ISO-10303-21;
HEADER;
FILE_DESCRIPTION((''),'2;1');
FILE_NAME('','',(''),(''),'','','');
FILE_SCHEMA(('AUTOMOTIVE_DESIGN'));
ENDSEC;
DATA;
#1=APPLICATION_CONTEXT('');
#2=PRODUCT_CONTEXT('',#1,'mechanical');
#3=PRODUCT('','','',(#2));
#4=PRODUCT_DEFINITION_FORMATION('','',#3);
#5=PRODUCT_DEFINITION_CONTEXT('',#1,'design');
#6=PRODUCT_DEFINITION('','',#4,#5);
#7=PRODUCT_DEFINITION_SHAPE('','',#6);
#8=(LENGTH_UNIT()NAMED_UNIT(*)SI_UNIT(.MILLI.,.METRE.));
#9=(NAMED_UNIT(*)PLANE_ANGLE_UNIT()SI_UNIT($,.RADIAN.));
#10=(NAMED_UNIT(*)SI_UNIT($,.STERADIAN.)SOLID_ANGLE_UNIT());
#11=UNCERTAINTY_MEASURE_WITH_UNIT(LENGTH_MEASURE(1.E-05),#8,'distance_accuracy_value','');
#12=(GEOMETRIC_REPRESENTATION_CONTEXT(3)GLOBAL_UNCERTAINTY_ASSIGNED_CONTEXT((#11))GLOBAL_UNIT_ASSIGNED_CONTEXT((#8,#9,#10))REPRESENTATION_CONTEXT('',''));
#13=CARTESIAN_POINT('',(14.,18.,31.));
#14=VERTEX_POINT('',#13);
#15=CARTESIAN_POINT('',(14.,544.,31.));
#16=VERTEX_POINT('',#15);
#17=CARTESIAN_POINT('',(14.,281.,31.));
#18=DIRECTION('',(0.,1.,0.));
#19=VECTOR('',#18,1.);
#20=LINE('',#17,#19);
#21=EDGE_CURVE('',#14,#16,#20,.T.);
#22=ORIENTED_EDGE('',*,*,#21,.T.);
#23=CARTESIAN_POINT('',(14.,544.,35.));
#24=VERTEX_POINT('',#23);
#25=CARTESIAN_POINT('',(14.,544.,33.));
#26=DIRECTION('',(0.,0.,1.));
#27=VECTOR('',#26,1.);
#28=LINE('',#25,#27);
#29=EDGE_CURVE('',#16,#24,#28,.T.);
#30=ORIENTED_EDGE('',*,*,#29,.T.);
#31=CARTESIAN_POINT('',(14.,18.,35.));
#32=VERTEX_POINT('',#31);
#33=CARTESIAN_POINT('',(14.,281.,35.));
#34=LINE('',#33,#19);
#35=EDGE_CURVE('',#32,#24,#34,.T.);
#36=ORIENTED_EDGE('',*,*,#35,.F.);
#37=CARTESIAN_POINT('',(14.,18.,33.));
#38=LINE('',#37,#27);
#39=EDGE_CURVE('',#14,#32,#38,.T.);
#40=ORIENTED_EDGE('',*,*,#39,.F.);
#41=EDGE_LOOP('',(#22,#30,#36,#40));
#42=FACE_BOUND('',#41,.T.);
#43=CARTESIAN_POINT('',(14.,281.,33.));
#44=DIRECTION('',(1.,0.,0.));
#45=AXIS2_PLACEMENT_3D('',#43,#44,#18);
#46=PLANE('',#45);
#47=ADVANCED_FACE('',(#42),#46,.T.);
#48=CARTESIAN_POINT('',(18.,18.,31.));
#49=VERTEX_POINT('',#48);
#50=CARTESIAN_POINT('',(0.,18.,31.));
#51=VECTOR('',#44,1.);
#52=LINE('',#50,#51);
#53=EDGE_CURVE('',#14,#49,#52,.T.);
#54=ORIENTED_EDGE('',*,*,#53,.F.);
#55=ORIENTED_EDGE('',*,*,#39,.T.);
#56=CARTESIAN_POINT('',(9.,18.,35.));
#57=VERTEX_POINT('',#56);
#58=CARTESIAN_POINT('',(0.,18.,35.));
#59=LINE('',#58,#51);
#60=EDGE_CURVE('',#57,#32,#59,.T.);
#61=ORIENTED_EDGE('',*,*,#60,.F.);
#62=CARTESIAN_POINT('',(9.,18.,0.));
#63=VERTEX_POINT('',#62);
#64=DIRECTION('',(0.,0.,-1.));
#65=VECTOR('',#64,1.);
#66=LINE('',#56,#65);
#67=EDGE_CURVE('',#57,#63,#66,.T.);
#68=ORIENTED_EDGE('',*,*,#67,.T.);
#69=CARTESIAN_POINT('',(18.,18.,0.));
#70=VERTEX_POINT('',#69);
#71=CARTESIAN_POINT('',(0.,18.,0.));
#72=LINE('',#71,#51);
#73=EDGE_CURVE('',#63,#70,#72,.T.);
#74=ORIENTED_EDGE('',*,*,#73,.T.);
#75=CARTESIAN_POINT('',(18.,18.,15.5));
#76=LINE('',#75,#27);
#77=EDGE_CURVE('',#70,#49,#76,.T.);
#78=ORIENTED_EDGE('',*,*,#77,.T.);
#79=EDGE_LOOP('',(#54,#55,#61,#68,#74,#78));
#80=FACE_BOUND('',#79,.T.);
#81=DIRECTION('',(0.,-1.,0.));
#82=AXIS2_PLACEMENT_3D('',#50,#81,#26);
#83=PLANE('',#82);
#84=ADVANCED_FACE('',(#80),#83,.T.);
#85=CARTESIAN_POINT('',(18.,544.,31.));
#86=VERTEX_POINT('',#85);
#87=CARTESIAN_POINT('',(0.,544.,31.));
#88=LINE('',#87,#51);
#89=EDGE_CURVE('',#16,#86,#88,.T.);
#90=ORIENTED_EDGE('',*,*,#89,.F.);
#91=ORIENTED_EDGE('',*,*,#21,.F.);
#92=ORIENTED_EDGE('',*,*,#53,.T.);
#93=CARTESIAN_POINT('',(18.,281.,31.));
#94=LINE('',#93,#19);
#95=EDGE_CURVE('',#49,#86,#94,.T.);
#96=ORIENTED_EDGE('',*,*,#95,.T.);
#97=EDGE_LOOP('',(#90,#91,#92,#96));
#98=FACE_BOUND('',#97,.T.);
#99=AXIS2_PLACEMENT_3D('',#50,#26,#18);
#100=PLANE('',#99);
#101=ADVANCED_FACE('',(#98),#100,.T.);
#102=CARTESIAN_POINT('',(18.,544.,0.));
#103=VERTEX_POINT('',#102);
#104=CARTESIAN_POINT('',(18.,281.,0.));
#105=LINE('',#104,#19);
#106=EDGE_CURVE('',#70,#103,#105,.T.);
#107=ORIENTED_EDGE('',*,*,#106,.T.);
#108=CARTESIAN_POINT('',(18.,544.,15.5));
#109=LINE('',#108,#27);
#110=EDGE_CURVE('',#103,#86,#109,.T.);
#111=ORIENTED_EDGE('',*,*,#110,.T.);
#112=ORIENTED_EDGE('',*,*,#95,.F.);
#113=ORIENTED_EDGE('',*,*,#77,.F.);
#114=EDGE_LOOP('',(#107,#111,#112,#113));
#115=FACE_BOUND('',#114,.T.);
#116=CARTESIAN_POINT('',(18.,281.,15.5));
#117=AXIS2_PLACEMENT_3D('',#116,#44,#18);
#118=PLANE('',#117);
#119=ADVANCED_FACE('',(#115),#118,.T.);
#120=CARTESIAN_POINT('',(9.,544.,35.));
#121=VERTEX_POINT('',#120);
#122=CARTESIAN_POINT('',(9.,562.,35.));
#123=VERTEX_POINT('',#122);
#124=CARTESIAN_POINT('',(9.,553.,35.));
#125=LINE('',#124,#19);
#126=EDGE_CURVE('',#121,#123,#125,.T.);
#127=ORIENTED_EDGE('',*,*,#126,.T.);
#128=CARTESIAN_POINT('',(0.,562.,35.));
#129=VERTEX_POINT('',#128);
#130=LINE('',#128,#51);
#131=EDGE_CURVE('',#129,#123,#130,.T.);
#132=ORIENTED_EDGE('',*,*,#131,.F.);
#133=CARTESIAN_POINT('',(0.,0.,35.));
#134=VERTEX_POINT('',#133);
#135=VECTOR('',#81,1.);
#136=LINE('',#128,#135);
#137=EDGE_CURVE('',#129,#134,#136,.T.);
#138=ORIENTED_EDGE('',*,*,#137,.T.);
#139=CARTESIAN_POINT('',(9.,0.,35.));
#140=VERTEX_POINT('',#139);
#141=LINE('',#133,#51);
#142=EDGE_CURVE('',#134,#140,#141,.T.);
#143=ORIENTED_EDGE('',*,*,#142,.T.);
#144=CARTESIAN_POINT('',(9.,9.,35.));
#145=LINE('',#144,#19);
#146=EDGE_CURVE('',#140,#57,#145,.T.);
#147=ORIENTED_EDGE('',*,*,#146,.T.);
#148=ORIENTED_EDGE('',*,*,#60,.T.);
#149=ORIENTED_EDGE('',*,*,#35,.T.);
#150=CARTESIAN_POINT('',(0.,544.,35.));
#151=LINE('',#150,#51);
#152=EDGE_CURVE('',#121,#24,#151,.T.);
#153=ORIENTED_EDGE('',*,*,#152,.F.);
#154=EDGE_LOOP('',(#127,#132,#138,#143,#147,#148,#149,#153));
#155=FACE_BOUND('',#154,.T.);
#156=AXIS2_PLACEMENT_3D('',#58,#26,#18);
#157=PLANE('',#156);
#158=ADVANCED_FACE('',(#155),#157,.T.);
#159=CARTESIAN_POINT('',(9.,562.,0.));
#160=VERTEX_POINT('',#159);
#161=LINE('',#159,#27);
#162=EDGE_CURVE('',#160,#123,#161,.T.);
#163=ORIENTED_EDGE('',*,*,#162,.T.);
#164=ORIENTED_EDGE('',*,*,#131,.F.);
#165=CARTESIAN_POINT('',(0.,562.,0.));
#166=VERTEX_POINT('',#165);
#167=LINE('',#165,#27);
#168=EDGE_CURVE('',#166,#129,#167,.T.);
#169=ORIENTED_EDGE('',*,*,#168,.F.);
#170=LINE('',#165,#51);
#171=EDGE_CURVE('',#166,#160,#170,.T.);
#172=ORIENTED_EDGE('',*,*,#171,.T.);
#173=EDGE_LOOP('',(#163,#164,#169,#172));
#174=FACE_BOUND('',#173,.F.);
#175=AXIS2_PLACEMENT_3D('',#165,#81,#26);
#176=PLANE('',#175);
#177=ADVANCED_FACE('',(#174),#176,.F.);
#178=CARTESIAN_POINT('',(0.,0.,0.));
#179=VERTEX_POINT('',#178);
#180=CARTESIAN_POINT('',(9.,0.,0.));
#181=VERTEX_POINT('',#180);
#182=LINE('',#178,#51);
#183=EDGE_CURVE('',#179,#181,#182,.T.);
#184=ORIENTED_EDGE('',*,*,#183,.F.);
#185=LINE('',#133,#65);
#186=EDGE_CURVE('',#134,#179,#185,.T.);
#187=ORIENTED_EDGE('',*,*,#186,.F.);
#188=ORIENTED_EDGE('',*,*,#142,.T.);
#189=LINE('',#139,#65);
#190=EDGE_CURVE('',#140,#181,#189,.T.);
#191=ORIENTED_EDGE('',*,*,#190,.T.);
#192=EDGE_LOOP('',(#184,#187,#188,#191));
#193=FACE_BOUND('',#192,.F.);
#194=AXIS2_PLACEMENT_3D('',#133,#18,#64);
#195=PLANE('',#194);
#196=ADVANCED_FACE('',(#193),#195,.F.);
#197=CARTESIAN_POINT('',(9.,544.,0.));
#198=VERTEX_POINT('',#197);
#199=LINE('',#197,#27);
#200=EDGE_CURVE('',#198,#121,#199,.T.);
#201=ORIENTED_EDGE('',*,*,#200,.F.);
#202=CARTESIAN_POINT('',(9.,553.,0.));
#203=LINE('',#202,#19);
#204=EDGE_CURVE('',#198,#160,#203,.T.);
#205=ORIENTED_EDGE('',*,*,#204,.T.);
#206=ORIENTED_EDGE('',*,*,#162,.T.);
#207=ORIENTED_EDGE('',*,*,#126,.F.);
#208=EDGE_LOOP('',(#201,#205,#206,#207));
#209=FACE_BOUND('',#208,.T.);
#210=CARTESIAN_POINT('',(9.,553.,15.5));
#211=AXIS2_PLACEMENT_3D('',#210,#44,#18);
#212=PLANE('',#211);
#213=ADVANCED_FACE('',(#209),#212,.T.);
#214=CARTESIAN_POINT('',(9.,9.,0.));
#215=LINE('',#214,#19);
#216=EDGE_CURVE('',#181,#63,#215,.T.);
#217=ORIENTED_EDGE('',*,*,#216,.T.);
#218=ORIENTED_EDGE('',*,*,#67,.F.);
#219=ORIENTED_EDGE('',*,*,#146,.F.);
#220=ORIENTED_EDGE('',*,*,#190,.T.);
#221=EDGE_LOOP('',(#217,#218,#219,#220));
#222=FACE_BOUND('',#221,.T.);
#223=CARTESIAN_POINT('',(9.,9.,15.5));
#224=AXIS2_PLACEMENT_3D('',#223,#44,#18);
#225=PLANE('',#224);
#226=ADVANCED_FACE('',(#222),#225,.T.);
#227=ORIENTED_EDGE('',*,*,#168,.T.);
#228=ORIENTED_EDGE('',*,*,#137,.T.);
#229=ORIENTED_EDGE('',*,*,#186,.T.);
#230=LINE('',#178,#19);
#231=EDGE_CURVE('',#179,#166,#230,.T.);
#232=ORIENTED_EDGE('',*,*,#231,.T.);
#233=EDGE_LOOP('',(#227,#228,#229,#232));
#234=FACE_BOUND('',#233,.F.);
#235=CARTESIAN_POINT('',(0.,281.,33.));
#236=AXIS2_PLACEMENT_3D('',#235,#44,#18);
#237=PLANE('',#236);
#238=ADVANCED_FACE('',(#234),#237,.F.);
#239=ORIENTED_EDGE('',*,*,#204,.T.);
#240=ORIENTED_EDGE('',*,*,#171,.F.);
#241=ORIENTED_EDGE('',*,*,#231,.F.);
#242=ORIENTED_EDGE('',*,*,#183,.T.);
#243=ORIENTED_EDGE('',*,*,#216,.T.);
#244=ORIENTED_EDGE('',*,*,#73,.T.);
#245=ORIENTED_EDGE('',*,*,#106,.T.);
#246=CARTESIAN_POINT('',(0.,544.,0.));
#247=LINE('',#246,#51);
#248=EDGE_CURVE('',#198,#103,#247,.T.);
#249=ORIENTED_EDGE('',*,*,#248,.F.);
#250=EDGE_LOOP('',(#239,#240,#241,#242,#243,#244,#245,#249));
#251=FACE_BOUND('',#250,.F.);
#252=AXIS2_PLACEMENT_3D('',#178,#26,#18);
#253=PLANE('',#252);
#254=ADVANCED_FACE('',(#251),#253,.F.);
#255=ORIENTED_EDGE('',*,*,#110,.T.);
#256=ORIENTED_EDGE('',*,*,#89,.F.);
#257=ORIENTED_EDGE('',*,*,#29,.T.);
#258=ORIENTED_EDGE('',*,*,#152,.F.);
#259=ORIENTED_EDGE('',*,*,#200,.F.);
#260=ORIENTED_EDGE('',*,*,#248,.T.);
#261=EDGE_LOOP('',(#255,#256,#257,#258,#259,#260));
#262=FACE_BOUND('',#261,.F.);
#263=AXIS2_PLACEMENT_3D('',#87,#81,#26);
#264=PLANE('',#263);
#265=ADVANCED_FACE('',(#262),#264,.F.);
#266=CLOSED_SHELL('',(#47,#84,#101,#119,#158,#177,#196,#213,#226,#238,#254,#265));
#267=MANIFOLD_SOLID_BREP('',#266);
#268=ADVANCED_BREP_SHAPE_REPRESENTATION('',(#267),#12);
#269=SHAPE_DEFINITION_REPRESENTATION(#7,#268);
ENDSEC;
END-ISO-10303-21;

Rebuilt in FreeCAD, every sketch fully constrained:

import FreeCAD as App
import Part
import Sketcher
from FreeCAD import Vector
Q = App.Units.Quantity

doc = App.newDocument("Part")
params = doc.addObject("Spreadsheet::Sheet", "Params")
for row, (alias, value) in enumerate([
    ("sketch1_width", "526 mm"),
    ("sketch1_height", "31 mm"),
    ("pad1_length", "18 mm"),
    ("sketch2_width", "18 mm"),
    ("sketch2_height", "35 mm"),
    ("pad2_length", "9 mm"),
    ("sketch3_width", "526 mm"),
    ("sketch3_height", "4 mm"),
    ("pad3_length", "14 mm"),
], start=1):
    params.set(f"A{row}", alias)
    params.set(f"B{row}", "=" + value)
    params.setAlias(f"B{row}", alias)

body = doc.addObject("PartDesign::Body", "Body")

sketch1 = body.newObject("Sketcher::SketchObject", "Sketch")
sketch1.AttachmentSupport = (doc.getObject("YZ_Plane"), [""])
sketch1.MapMode = "FlatFace"
sketch1.addGeometry([
    Part.LineSegment(Vector(18, 31, 0), Vector(18, 0, 0)),
    Part.LineSegment(Vector(18, 0, 0), Vector(544, 0, 0)),
    Part.LineSegment(Vector(544, 0, 0), Vector(544, 31, 0)),
    Part.LineSegment(Vector(544, 31, 0), Vector(18, 31, 0)),
], False)
sketch1.addConstraint([
    Sketcher.Constraint("Coincident", 0, 2, 1, 1),
    Sketcher.Constraint("Coincident", 1, 2, 2, 1),
    Sketcher.Constraint("Coincident", 2, 2, 3, 1),
    Sketcher.Constraint("Coincident", 3, 2, 0, 1),
    Sketcher.Constraint("Vertical", 0),
    Sketcher.Constraint("Horizontal", 1),
    Sketcher.Constraint("Vertical", 2),
    Sketcher.Constraint("Horizontal", 3),
    Sketcher.Constraint("PointOnObject", 0, 2, -1),
    Sketcher.Constraint("DistanceX", 1, 1, 1, 2, Q("526 mm")),
    Sketcher.Constraint("DistanceY", 0, 2, 0, 1, Q("31 mm")),
    Sketcher.Constraint("DistanceX", -1, 1, 0, 2, Q("18 mm")),
])
sketch1.setExpression("Constraints[9]", "Params.sketch1_width")
sketch1.setExpression("Constraints[10]", "Params.sketch1_height")
pad1 = body.newObject("PartDesign::Pad", "Pad")
pad1.Profile = sketch1
pad1.setExpression("Length", "Params.pad1_length")

sketch2 = body.newObject("Sketcher::SketchObject", "Sketch001")
sketch2.AttachmentSupport = (doc.getObject("YZ_Plane"), [""])
sketch2.MapMode = "FlatFace"
sketch2.addGeometry([
    Part.LineSegment(Vector(0, 0, 0), Vector(18, 0, 0)),
    Part.LineSegment(Vector(18, 0, 0), Vector(18, 35, 0)),
    Part.LineSegment(Vector(18, 35, 0), Vector(0, 35, 0)),
    Part.LineSegment(Vector(0, 35, 0), Vector(0, 0, 0)),
    Part.LineSegment(Vector(544, 0, 0), Vector(562, 0, 0)),
    Part.LineSegment(Vector(562, 0, 0), Vector(562, 35, 0)),
    Part.LineSegment(Vector(562, 35, 0), Vector(544, 35, 0)),
    Part.LineSegment(Vector(544, 35, 0), Vector(544, 0, 0)),
], False)
sketch2.addConstraint([
    Sketcher.Constraint("Coincident", 0, 2, 1, 1),
    Sketcher.Constraint("Coincident", 1, 2, 2, 1),
    Sketcher.Constraint("Coincident", 2, 2, 3, 1),
    Sketcher.Constraint("Coincident", 3, 2, 0, 1),
    Sketcher.Constraint("Coincident", 4, 2, 5, 1),
    Sketcher.Constraint("Coincident", 5, 2, 6, 1),
    Sketcher.Constraint("Coincident", 6, 2, 7, 1),
    Sketcher.Constraint("Coincident", 7, 2, 4, 1),
    Sketcher.Constraint("Horizontal", 0),
    Sketcher.Constraint("Vertical", 1),
    Sketcher.Constraint("Horizontal", 2),
    Sketcher.Constraint("Vertical", 3),
    Sketcher.Constraint("Horizontal", 4),
    Sketcher.Constraint("Vertical", 5),
    Sketcher.Constraint("Horizontal", 6),
    Sketcher.Constraint("Vertical", 7),
    Sketcher.Constraint("Coincident", 3, 2, -1, 1),
    Sketcher.Constraint("PointOnObject", 4, 2, -1),
    Sketcher.Constraint("Horizontal", 2, 2, 5, 2),
    Sketcher.Constraint("Equal", 2, 4),
    Sketcher.Constraint("DistanceX", 0, 1, 0, 2, Q("18 mm")),
    Sketcher.Constraint("DistanceY", 1, 1, 1, 2, Q("35 mm")),
    Sketcher.Constraint("DistanceX", -1, 1, 4, 2, Q("562 mm")),
])
sketch2.setExpression("Constraints[20]", "Params.sketch2_width")
sketch2.setExpression("Constraints[21]", "Params.sketch2_height")
pad2 = body.newObject("PartDesign::Pad", "Pad001")
pad2.Profile = sketch2
pad2.setExpression("Length", "Params.pad2_length")

sketch3 = body.newObject("Sketcher::SketchObject", "Sketch002")
sketch3.AttachmentSupport = (doc.getObject("YZ_Plane"), [""])
sketch3.MapMode = "FlatFace"
sketch3.addGeometry([
    Part.LineSegment(Vector(18, 35, 0), Vector(18, 31, 0)),
    Part.LineSegment(Vector(18, 31, 0), Vector(544, 31, 0)),
    Part.LineSegment(Vector(544, 31, 0), Vector(544, 35, 0)),
    Part.LineSegment(Vector(544, 35, 0), Vector(18, 35, 0)),
], False)
sketch3.addConstraint([
    Sketcher.Constraint("Coincident", 0, 2, 1, 1),
    Sketcher.Constraint("Coincident", 1, 2, 2, 1),
    Sketcher.Constraint("Coincident", 2, 2, 3, 1),
    Sketcher.Constraint("Coincident", 3, 2, 0, 1),
    Sketcher.Constraint("Vertical", 0),
    Sketcher.Constraint("Horizontal", 1),
    Sketcher.Constraint("Vertical", 2),
    Sketcher.Constraint("Horizontal", 3),
    Sketcher.Constraint("DistanceX", 1, 1, 1, 2, Q("526 mm")),
    Sketcher.Constraint("DistanceY", 0, 2, 0, 1, Q("4 mm")),
    Sketcher.Constraint("DistanceX", -1, 1, 0, 2, Q("18 mm")),
    Sketcher.Constraint("DistanceY", -1, 1, 0, 2, Q("31 mm")),
])
sketch3.setExpression("Constraints[8]", "Params.sketch3_width")
sketch3.setExpression("Constraints[9]", "Params.sketch3_height")
pad3 = body.newObject("PartDesign::Pad", "Pad002")
pad3.Profile = sketch3
pad3.setExpression("Length", "Params.pad3_length")

doc.recompute()
